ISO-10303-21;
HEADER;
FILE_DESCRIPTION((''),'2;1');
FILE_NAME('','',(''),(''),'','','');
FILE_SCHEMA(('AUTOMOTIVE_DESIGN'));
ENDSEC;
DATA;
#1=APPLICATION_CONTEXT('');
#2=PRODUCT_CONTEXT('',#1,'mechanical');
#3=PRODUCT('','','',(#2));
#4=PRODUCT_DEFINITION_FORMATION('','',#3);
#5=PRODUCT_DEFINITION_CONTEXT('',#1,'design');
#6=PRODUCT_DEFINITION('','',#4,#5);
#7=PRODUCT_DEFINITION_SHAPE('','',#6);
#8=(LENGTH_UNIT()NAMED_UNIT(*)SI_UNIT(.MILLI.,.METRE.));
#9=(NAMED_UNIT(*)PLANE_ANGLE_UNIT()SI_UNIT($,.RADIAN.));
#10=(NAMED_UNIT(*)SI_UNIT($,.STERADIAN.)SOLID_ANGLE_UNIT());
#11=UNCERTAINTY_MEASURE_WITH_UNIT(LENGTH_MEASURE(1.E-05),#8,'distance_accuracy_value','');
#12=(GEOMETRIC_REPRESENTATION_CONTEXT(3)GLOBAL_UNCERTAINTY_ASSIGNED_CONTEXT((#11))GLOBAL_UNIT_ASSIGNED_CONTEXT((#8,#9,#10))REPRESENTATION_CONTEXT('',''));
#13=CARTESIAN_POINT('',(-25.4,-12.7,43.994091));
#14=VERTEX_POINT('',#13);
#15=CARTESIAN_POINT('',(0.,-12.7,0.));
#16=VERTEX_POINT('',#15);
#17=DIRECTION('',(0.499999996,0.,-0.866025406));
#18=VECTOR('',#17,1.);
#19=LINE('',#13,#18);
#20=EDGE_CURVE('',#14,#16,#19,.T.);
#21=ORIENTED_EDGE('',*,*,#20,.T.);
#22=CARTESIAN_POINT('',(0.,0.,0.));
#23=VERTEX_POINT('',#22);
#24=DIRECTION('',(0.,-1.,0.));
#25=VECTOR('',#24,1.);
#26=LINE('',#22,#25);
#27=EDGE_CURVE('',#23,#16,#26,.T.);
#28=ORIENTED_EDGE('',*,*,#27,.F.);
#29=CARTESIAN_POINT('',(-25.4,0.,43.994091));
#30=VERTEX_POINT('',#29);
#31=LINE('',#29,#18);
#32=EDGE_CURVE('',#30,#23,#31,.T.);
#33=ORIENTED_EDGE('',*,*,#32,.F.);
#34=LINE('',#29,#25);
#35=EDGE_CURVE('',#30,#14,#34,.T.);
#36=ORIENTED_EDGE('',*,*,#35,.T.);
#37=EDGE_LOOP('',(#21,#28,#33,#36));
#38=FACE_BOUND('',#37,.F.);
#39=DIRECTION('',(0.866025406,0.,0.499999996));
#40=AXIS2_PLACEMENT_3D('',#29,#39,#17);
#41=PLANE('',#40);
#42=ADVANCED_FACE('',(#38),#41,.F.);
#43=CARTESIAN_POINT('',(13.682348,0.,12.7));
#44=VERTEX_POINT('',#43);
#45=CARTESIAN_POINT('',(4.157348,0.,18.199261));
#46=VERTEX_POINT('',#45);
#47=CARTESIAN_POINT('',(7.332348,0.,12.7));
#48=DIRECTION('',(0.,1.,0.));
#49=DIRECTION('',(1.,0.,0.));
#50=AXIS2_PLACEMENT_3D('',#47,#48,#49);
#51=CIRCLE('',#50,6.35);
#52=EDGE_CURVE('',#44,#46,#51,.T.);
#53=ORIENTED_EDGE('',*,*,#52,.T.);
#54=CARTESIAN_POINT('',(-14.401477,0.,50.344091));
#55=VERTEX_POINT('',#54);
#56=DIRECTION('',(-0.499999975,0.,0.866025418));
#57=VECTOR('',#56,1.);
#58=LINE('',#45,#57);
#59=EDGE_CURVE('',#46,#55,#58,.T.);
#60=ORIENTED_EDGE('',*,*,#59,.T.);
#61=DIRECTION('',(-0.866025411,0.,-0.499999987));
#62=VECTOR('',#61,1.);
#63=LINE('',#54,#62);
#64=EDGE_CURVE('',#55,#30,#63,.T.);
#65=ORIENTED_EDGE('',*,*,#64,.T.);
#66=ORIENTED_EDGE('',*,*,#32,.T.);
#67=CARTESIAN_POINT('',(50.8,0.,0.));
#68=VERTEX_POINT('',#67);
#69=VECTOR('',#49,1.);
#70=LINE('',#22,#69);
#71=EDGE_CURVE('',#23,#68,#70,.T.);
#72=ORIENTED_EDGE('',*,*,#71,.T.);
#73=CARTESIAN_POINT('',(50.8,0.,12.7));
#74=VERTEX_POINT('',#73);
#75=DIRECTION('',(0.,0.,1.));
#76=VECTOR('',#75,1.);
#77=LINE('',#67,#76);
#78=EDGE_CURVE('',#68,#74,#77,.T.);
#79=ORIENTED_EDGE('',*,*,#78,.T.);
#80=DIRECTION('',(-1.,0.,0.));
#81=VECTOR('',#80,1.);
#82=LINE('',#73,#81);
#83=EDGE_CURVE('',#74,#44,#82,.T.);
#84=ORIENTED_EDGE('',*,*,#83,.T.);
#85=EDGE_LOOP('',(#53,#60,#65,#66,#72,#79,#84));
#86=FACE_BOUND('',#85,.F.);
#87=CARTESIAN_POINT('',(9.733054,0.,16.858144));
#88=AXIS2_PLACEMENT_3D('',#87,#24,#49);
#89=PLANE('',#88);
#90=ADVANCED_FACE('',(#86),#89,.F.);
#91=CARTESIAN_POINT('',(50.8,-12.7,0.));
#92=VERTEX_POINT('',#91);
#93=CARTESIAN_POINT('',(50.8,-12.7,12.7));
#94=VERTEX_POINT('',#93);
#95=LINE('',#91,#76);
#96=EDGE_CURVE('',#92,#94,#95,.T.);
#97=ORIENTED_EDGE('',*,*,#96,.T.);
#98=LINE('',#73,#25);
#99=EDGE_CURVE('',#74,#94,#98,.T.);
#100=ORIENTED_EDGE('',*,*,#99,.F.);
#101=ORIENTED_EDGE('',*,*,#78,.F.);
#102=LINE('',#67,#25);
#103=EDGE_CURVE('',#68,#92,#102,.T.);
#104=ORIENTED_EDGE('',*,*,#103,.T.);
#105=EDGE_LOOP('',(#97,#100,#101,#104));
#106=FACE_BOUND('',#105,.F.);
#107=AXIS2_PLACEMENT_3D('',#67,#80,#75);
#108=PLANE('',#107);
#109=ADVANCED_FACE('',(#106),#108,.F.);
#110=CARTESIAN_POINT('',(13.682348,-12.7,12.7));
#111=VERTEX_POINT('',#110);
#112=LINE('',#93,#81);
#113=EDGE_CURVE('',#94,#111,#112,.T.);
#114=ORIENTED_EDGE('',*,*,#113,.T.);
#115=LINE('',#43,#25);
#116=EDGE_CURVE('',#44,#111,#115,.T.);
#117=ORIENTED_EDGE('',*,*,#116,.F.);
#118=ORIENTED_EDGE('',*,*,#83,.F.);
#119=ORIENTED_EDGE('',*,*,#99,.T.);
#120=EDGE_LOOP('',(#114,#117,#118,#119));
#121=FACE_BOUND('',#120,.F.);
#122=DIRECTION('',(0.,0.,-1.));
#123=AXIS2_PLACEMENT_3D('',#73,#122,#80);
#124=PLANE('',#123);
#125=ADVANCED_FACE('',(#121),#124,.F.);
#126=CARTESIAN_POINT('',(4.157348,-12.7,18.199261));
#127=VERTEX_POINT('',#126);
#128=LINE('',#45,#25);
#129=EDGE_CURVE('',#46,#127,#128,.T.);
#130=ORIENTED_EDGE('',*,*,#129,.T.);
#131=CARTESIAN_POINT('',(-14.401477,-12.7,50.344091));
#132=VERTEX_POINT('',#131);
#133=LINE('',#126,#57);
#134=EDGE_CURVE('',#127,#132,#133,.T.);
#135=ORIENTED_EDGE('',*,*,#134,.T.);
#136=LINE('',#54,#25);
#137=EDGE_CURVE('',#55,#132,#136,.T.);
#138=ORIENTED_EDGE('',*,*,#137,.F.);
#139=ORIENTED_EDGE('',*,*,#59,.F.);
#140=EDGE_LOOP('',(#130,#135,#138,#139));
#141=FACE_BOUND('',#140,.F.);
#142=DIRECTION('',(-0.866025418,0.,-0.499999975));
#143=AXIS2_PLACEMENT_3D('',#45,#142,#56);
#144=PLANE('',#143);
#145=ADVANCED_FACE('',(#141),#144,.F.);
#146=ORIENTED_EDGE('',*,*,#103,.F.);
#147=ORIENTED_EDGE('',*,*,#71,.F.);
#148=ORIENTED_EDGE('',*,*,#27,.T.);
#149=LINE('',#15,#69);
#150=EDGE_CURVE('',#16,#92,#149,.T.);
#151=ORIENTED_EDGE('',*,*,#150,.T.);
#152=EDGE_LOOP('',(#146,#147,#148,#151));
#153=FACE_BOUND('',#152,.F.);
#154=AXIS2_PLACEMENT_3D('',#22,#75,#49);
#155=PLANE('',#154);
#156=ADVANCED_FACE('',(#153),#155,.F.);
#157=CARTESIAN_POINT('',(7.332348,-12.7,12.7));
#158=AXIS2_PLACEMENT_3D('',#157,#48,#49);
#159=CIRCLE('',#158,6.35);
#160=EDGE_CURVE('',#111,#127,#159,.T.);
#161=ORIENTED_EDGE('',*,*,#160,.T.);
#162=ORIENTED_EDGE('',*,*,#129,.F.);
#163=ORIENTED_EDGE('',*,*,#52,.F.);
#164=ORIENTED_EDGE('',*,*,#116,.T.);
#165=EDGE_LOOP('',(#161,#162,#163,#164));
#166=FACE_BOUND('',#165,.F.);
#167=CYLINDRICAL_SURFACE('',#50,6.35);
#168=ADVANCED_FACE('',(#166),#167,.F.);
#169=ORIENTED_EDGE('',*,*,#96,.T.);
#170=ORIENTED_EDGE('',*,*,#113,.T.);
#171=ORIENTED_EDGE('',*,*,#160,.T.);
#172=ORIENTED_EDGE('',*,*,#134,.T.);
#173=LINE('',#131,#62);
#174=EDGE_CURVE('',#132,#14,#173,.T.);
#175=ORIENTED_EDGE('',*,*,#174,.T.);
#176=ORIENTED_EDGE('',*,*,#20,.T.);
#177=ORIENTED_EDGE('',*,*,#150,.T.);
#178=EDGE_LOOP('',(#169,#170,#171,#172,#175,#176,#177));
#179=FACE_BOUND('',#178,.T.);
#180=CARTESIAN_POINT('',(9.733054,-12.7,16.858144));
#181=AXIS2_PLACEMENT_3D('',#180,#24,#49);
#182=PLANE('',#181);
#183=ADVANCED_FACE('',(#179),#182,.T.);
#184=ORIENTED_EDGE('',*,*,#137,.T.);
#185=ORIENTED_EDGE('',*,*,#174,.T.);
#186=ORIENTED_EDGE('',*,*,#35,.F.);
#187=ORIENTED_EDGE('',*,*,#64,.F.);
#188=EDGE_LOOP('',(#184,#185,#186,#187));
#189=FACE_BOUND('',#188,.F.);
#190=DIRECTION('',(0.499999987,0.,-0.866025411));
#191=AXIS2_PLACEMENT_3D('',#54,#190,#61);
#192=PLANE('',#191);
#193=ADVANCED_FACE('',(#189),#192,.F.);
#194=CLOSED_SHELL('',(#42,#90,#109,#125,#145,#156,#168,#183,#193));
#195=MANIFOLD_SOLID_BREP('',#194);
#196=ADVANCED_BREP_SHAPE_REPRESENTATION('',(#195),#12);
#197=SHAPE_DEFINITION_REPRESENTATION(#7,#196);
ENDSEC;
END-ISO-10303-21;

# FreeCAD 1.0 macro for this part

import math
import FreeCAD as App
import Part
import Sketcher
Q = App.Units.Quantity

doc = App.newDocument("Part")
body = doc.addObject("PartDesign::Body", "Body")

# Sketch on XZ plane
sketch1 = body.newObject("Sketcher::SketchObject", "Sketch")
sketch1.AttachmentSupport = (doc.getObject("XZ_Plane"), [""])
sketch1.MapMode = "FlatFace"
sketch1.addGeometry(Part.LineSegment(App.Vector(-25.4, 43.994091, 0), App.Vector(0, 0, 0)), False)
sketch1.addGeometry(Part.LineSegment(App.Vector(0, 0, 0), App.Vector(50.8, 0, 0)), False)
sketch1.addGeometry(Part.LineSegment(App.Vector(50.8, 0, 0), App.Vector(50.8, 12.7, 0)), False)
sketch1.addGeometry(Part.LineSegment(App.Vector(50.8, 12.7, 0), App.Vector(13.682348, 12.7, 0)), False)
sketch1.addGeometry(Part.ArcOfCircle(Part.Circle(App.Vector(7.332348, 12.7, 0), App.Vector(0, 0, 1), 6.35), math.radians(120.000003), math.radians(360)), False)
sketch1.addGeometry(Part.LineSegment(App.Vector(4.157348, 18.199261, 0), App.Vector(-14.401477, 50.344091, 0)), False)
sketch1.addGeometry(Part.LineSegment(App.Vector(-14.401477, 50.344091, 0), App.Vector(-25.4, 43.994091, 0)), False)
sketch1.addConstraint(Sketcher.Constraint("Coincident", 0, 2, 1, 1))
sketch1.addConstraint(Sketcher.Constraint("Coincident", 1, 2, 2, 1))
sketch1.addConstraint(Sketcher.Constraint("Coincident", 2, 2, 3, 1))
sketch1.addConstraint(Sketcher.Constraint("Coincident", 3, 2, 4, 2))
sketch1.addConstraint(Sketcher.Constraint("Coincident", 4, 1, 5, 1))
sketch1.addConstraint(Sketcher.Constraint("Coincident", 5, 2, 6, 1))
sketch1.addConstraint(Sketcher.Constraint("Coincident", 6, 2, 0, 1))
sketch1.addConstraint(Sketcher.Constraint("Horizontal", 1))
sketch1.addConstraint(Sketcher.Constraint("Vertical", 2))
sketch1.addConstraint(Sketcher.Constraint("Horizontal", 3))
sketch1.addConstraint(Sketcher.Constraint("Coincident", 0, 2, -1, 1))
sketch1.addConstraint(Sketcher.Constraint("Parallel", 0, 5))
sketch1.addConstraint(Sketcher.Constraint("Perpendicular", 5, 6))
sketch1.addConstraint(Sketcher.Constraint("Horizontal", 4, 3, 2, 2))
sketch1.addConstraint(Sketcher.Constraint("DistanceX", 1, 1, 1, 2, Q("2 in")))
sketch1.addConstraint(Sketcher.Constraint("Radius", 4, Q("0.25 in")))
sketch1.addConstraint(Sketcher.Constraint("Distance", 0, Q("2 in")))
sketch1.addConstraint(Sketcher.Constraint("DistanceY", 2, 1, 2, 2, Q("0.5 in")))
sketch1.addConstraint(Sketcher.Constraint("DistanceX", 6, 2, -1, 1, Q("1 in")))
sketch1.addConstraint(Sketcher.Constraint("Distance", 6, Q("0.5 in")))
sketch1.addConstraint(Sketcher.Constraint("DistanceX", 4, 1, 4, 3, Q("0.125 in")))
pad1 = body.newObject("PartDesign::Pad", "Pad")
pad1.Profile = sketch1
pad1.Length = Q("0.5 in")

doc.recompute()
